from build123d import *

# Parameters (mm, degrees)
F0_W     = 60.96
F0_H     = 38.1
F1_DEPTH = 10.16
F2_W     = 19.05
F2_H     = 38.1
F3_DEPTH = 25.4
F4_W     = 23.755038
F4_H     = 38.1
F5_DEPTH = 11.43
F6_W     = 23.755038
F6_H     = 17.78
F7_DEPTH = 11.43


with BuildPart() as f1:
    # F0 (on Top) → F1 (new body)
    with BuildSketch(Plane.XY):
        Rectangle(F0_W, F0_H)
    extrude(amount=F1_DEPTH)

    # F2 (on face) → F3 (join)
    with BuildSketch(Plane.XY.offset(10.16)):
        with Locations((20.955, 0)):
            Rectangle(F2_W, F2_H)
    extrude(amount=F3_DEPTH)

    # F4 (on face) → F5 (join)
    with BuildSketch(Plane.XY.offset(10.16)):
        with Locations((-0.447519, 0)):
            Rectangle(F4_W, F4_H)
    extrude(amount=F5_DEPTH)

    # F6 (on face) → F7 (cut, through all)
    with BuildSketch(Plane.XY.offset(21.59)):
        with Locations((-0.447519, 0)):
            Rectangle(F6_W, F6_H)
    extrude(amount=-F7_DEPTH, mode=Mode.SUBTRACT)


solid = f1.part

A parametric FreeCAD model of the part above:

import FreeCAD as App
import Part
import Sketcher

V = App.Vector
Q = App.Units.Quantity


def add_polygon(sketch, points):
    """Adds a closed chain of lines whose ends are joined by coincident constraints."""
    first, n = sketch.GeometryCount, len(points)
    for a, b in zip(points, points[1:] + points[:1]):
        sketch.addGeometry(Part.LineSegment(App.Vector(*a, 0), App.Vector(*b, 0)), False)
    for i in range(n):
        sketch.addConstraint(Sketcher.Constraint("Coincident", first + i, 2, first + (i + 1) % n, 1))

doc = App.newDocument("Part")
body = doc.addObject("PartDesign::Body", "Body")

sketch1 = doc.addObject("Sketcher::SketchObject", "Sketch")
body.addObject(sketch1)
sketch1.AttachmentSupport = (doc.XY_Plane, [""])
sketch1.MapMode = "FlatFace"
add_polygon(sketch1, [(-30, 19), (-30, -19), (30, -19), (30, 19)])
sketch1.addConstraint([
    Sketcher.Constraint("Vertical", 0),
    Sketcher.Constraint("Horizontal", 1),
    Sketcher.Constraint("Vertical", 2),
    Sketcher.Constraint("Horizontal", 3),
    Sketcher.Constraint("Symmetric", 0, 2, 2, 2, -1, 1),
    Sketcher.Constraint("DistanceX", 1, 1, 1, 2, Q("2.4 in")),
    Sketcher.Constraint("DistanceY", 0, 2, 0, 1, Q("1.5 in")),
])
pad1 = doc.addObject("PartDesign::Pad", "Pad")
body.addObject(pad1)
pad1.Profile = sketch1
pad1.Length = Q("0.4 in")

sketch2 = doc.addObject("Sketcher::SketchObject", "Sketch001")
body.addObject(sketch2)
sketch2.AttachmentSupport = (doc.XY_Plane, [""])
sketch2.MapMode = "FlatFace"
sketch2.AttachmentOffset = App.Placement(V(0, 0, 0.4 * 25.4), App.Rotation())
add_polygon(sketch2, [(11, 19), (11, -19), (30, -19), (30, 19)])
sketch2.addConstraint([
    Sketcher.Constraint("Vertical", 0),
    Sketcher.Constraint("Horizontal", 1),
    Sketcher.Constraint("Vertical", 2),
    Sketcher.Constraint("Horizontal", 3),
    Sketcher.Constraint("DistanceY", 0, 2, 0, 1, Q("1.5 in")),
    Sketcher.Constraint("DistanceX", 1, 1, 1, 2, Q("0.75 in")),
    Sketcher.Constraint("DistanceX", -1, 1, 1, 2, Q("1.2 in")),
    Sketcher.Constraint("DistanceY", 0, 2, -1, 1, Q("0.75 in")),
])
pad2 = doc.addObject("PartDesign::Pad", "Pad001")
body.addObject(pad2)
pad2.Profile = sketch2
pad2.Length = Q("1 in")

sketch3 = doc.addObject("Sketcher::SketchObject", "Sketch002")
body.addObject(sketch3)
sketch3.AttachmentSupport = (doc.XY_Plane, [""])
sketch3.MapMode = "FlatFace"
sketch3.AttachmentOffset = App.Placement(V(0, 0, 0.4 * 25.4), App.Rotation())
add_polygon(sketch3, [(-12, 19), (-12, -19), (11, -19), (11, 19)])
sketch3.addConstraint([
    Sketcher.Constraint("Vertical", 0),
    Sketcher.Constraint("Horizontal", 1),
    Sketcher.Constraint("Vertical", 2),
    Sketcher.Constraint("Horizontal", 3),
    Sketcher.Constraint("DistanceY", 0, 2, 0, 1, Q("1.5 in")),
    Sketcher.Constraint("DistanceY", 0, 2, -1, 1, Q("0.75 in")),
    Sketcher.Constraint("DistanceX", -1, 1, 1, 2, Q("0.45 in")),
    Sketcher.Constraint("DistanceX", 1, 1, 1, 2, Q("23.755038 mm")),
])
pad3 = doc.addObject("PartDesign::Pad", "Pad002")
body.addObject(pad3)
pad3.Profile = sketch3
pad3.Length = Q("0.45 in")

sketch4 = doc.addObject("Sketcher::SketchObject", "Sketch003")
body.addObject(sketch4)
sketch4.AttachmentSupport = (doc.XY_Plane, [""])
sketch4.MapMode = "FlatFace"
sketch4.AttachmentOffset = App.Placement(V(0, 0, 0.85 * 25.4), App.Rotation())
add_polygon(sketch4, [(-12, 9), (-12, -9), (11, -9), (11, 9)])
sketch4.addConstraint([
    Sketcher.Constraint("Vertical", 0),
    Sketcher.Constraint("Horizontal", 1),
    Sketcher.Constraint("Vertical", 2),
    Sketcher.Constraint("Horizontal", 3),
    Sketcher.Constraint("DistanceY", 0, 2, 0, 1, Q("0.7 in")),
    Sketcher.Constraint("DistanceY", 0, 2, -1, 1, Q("0.35 in")),
    Sketcher.Constraint("DistanceX", -1, 1, 1, 2, Q("0.45 in")),
    Sketcher.Constraint("DistanceX", 1, 1, 1, 2, Q("23.755038 mm")),
])
pocket1 = doc.addObject("PartDesign::Pocket", "Pocket")
body.addObject(pocket1)
pocket1.Profile = sketch4
pocket1.Length = Q("0.45 in")

doc.recompute()
